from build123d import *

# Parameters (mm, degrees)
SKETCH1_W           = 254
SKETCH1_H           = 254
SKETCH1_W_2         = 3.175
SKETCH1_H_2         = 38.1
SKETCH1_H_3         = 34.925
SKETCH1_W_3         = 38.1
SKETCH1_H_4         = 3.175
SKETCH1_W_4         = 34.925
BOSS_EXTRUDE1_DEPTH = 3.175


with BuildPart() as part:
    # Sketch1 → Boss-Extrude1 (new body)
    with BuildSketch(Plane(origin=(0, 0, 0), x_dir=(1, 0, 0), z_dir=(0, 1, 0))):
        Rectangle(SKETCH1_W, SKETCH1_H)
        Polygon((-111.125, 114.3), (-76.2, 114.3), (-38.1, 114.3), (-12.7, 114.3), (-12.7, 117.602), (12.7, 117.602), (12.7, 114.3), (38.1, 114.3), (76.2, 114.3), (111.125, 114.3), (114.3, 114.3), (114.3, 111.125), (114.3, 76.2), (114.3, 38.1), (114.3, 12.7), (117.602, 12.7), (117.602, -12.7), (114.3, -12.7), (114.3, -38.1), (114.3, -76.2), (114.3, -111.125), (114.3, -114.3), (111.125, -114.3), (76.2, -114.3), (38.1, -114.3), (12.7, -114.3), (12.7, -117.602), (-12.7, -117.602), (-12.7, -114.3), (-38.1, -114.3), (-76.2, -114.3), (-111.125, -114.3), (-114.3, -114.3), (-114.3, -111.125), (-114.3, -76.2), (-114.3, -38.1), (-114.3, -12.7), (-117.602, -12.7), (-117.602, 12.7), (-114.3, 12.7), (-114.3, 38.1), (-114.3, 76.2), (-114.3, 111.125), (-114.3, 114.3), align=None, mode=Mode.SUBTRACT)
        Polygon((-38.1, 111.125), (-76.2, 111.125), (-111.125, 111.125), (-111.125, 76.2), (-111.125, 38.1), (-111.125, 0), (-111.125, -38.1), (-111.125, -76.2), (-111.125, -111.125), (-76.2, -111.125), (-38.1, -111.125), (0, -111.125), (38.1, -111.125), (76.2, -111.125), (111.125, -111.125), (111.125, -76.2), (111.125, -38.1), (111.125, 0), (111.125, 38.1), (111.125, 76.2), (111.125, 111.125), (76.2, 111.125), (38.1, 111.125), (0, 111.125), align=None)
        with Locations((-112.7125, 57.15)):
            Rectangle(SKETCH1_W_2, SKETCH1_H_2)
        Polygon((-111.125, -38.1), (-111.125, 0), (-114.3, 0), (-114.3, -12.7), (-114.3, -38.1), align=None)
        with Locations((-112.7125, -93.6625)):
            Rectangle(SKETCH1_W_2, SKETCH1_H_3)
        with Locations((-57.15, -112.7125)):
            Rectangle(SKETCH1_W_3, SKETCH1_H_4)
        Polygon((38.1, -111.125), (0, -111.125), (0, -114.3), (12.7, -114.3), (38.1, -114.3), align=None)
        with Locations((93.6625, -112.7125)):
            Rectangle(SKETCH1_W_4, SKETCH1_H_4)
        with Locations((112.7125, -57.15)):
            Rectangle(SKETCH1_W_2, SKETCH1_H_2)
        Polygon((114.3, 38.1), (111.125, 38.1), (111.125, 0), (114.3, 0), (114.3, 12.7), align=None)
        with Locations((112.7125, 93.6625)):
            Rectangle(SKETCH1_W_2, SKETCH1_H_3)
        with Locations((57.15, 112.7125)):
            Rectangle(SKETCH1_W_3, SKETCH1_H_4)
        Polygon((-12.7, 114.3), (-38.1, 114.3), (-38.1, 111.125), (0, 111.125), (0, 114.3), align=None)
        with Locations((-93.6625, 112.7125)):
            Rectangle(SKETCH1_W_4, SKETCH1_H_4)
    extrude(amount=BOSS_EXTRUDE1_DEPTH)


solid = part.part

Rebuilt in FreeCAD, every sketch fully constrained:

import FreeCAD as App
import Part
import Sketcher

V = App.Vector
Q = App.Units.Quantity


def add_polygon(sketch, points):
    """Adds a closed chain of lines whose ends are joined by coincident constraints."""
    first, n = sketch.GeometryCount, len(points)
    for a, b in zip(points, points[1:] + points[:1]):
        sketch.addGeometry(Part.LineSegment(App.Vector(*a, 0), App.Vector(*b, 0)), False)
    for i in range(n):
        sketch.addConstraint(Sketcher.Constraint("Coincident", first + i, 2, first + (i + 1) % n, 1))

doc = App.newDocument("Part")
body = doc.addObject("PartDesign::Body", "Body")

sketch1 = body.newObject("Sketcher::SketchObject", "Sketch")
sketch1.AttachmentSupport = (doc.getObject("XZ_Plane"), [""])
sketch1.MapMode = "FlatFace"
add_polygon(sketch1, [(-127, -127), (-127, 127), (127, 127), (127, -127)])
add_polygon(sketch1, [(-114.3, -114.3), (-111.1, -114.3), (-111.1, -76.2), (-114.3, -76.2)])
add_polygon(sketch1, [(-76.2, -114.3), (-38.1, -114.3), (-38.1, -111.1), (-76.2, -111.1)])
add_polygon(sketch1, [(-12.7, -114.3), (-12.7, -117.6), (12.7, -117.6), (12.7, -114.3), (38.1, -114.3), (38.1, -111.1), (0, -111.1), (0, -114.3)])
add_polygon(sketch1, [(76.2, -114.3), (114.3, -114.3), (114.3, -111.1), (76.2, -111.1)])
add_polygon(sketch1, [(114.3, -76.2), (114.3, -38.1), (111.1, -38.1), (111.1, -76.2)])
add_polygon(sketch1, [(114.3, -12.7), (117.6, -12.7), (117.6, 12.7), (114.3, 12.7), (114.3, 38.1), (111.1, 38.1), (111.1, 0), (114.3, 0)])
add_polygon(sketch1, [(114.3, 76.2), (114.3, 114.3), (111.1, 114.3), (111.1, 76.2)])
add_polygon(sketch1, [(76.2, 114.3), (38.1, 114.3), (38.1, 111.1), (76.2, 111.1)])
add_polygon(sketch1, [(12.7, 114.3), (12.7, 117.6), (-12.7, 117.6), (-12.7, 114.3), (-38.1, 114.3), (-38.1, 111.1), (0, 111.1), (0, 114.3)])
add_polygon(sketch1, [(-76.2, 114.3), (-114.3, 114.3), (-114.3, 111.1), (-76.2, 111.1)])
add_polygon(sketch1, [(-114.3, 76.2), (-114.3, 38.1), (-111.1, 38.1), (-111.1, 76.2)])
add_polygon(sketch1, [(-114.3, 12.7), (-117.6, 12.7), (-117.6, -12.7), (-114.3, -12.7), (-114.3, -38.1), (-111.1, -38.1), (-111.1, 0), (-114.3, 0)])
sketch1.addConstraint([
    Sketcher.Constraint("Vertical", 0),
    Sketcher.Constraint("Horizontal", 1),
    Sketcher.Constraint("Vertical", 2),
    Sketcher.Constraint("Horizontal", 3),
    Sketcher.Constraint("Horizontal", 4),
    Sketcher.Constraint("Vertical", 5),
    Sketcher.Constraint("Horizontal", 6),
    Sketcher.Constraint("Vertical", 7),
    Sketcher.Constraint("Horizontal", 8),
    Sketcher.Constraint("Vertical", 9),
    Sketcher.Constraint("Horizontal", 10),
    Sketcher.Constraint("Vertical", 11),
    Sketcher.Constraint("Vertical", 12),
    Sketcher.Constraint("Horizontal", 13),
    Sketcher.Constraint("Vertical", 14),
    Sketcher.Constraint("Horizontal", 15),
    Sketcher.Constraint("Vertical", 16),
    Sketcher.Constraint("Horizontal", 17),
    Sketcher.Constraint("Vertical", 18),
    Sketcher.Constraint("Horizontal", 19),
    Sketcher.Constraint("Horizontal", 20),
    Sketcher.Constraint("Vertical", 21),
    Sketcher.Constraint("Horizontal", 22),
    Sketcher.Constraint("Vertical", 23),
    Sketcher.Constraint("Vertical", 24),
    Sketcher.Constraint("Horizontal", 25),
    Sketcher.Constraint("Vertical", 26),
    Sketcher.Constraint("Horizontal", 27),
    Sketcher.Constraint("Horizontal", 28),
    Sketcher.Constraint("Vertical", 29),
    Sketcher.Constraint("Horizontal", 30),
    Sketcher.Constraint("Vertical", 31),
    Sketcher.Constraint("Horizontal", 32),
    Sketcher.Constraint("Vertical", 33),
    Sketcher.Constraint("Horizontal", 34),
    Sketcher.Constraint("Vertical", 35),
    Sketcher.Constraint("Vertical", 36),
    Sketcher.Constraint("Horizontal", 37),
    Sketcher.Constraint("Vertical", 38),
    Sketcher.Constraint("Horizontal", 39),
    Sketcher.Constraint("Horizontal", 40),
    Sketcher.Constraint("Vertical", 41),
    Sketcher.Constraint("Horizontal", 42),
    Sketcher.Constraint("Vertical", 43),
    Sketcher.Constraint("Vertical", 44),
    Sketcher.Constraint("Horizontal", 45),
    Sketcher.Constraint("Vertical", 46),
    Sketcher.Constraint("Horizontal", 47),
    Sketcher.Constraint("Vertical", 48),
    Sketcher.Constraint("Horizontal", 49),
    Sketcher.Constraint("Vertical", 50),
    Sketcher.Constraint("Horizontal", 51),
    Sketcher.Constraint("Horizontal", 52),
    Sketcher.Constraint("Vertical", 53),
    Sketcher.Constraint("Horizontal", 54),
    Sketcher.Constraint("Vertical", 55),
    Sketcher.Constraint("Vertical", 56),
    Sketcher.Constraint("Horizontal", 57),
    Sketcher.Constraint("Vertical", 58),
    Sketcher.Constraint("Horizontal", 59),
    Sketcher.Constraint("Horizontal", 60),
    Sketcher.Constraint("Vertical", 61),
    Sketcher.Constraint("Horizontal", 62),
    Sketcher.Constraint("Vertical", 63),
    Sketcher.Constraint("Horizontal", 64),
    Sketcher.Constraint("Vertical", 65),
    Sketcher.Constraint("Horizontal", 66),
    Sketcher.Constraint("Vertical", 67),
    Sketcher.Constraint("Symmetric", 0, 2, 2, 2, -1, 1),
    Sketcher.Constraint("Symmetric", 7, 2, 36, 2, -1, 1),
    Sketcher.Constraint("Symmetric", 5, 2, 38, 2, -1, 1),
    Sketcher.Constraint("Symmetric", 8, 2, 40, 2, -1, 1),
    Sketcher.Constraint("Symmetric", 10, 2, 42, 2, -1, 1),
    Sketcher.Constraint("Symmetric", 12, 2, 44, 2, -1, 1),
    Sketcher.Constraint("Symmetric", 14, 2, 46, 2, -1, 1),
    Sketcher.Constraint("Symmetric", 16, 2, 48, 2, -1, 1),
    Sketcher.Constraint("Symmetric", 18, 2, 50, 2, -1, 1),
    Sketcher.Constraint("Symmetric", 20, 2, 52, 2, -1, 1),
    Sketcher.Constraint("Symmetric", 22, 2, 54, 2, -1, 1),
    Sketcher.Constraint("Symmetric", 24, 2, 56, 2, -1, 1),
    Sketcher.Constraint("Symmetric", 26, 2, 58, 2, -1, 1),
    Sketcher.Constraint("Symmetric", 28, 2, 60, 2, -1, 1),
    Sketcher.Constraint("Symmetric", 30, 2, 62, 2, -1, 1),
    Sketcher.Constraint("Symmetric", 32, 2, 64, 2, -1, 1),
    Sketcher.Constraint("Symmetric", 34, 2, 66, 2, -1, 1),
    Sketcher.Constraint("Symmetric", 8, 2, 15, 2, -2),
    Sketcher.Constraint("Symmetric", 14, 2, 19, 2, -2),
    Sketcher.Constraint("Symmetric", 7, 2, 20, 2, -2),
    Sketcher.Constraint("Symmetric", 10, 2, 22, 2, -2),
    Sketcher.Constraint("Symmetric", 5, 2, 26, 2, -2),
    Sketcher.Constraint("Symmetric", 31, 2, 56, 2, -2),
    Sketcher.Constraint("Symmetric", 35, 2, 62, 2, -2),
    Sketcher.Constraint("PointOnObject", 17, 2, -2),
    Sketcher.Constraint("PointOnObject", 33, 2, -1),
    Sketcher.Constraint("Horizontal", 7, 2, 8, 2),
    Sketcher.Constraint("Horizontal", 10, 2, 16, 2),
    Sketcher.Constraint("Vertical", 21, 2, 24, 2),
    Sketcher.Constraint("Vertical", 26, 2, 32, 2),
    Sketcher.Constraint("Equal", 13, 15),
    Sketcher.Constraint("Equal", 10, 17),
    Sketcher.Constraint("Equal", 17, 20),
    Sketcher.Constraint("Equal", 3, 0),
    Sketcher.Constraint("Equal", 54, 5),
    Sketcher.Constraint("Equal", 66, 9),
    Sketcher.Constraint("Equal", 62, 12),
    Sketcher.Constraint("Equal", 7, 24),
    Sketcher.Constraint("Equal", 47, 29),
    Sketcher.Constraint("Equal", 29, 31),
    Sketcher.Constraint("DistanceX", 1, 1, 1, 2, Q("10 in")),
    Sketcher.Constraint("DistanceX", 13, 1, 13, 2, Q("1 in")),
    Sketcher.Constraint("DistanceX", 28, 1, 28, 2, Q("0.13 in")),
    Sketcher.Constraint("DistanceX", 4, 1, 4, 2, Q("0.125 in")),
])
pad1 = body.newObject("PartDesign::Pad", "Pad")
pad1.Profile = sketch1
pad1.Length = Q("0.125 in")
pad1.Reversed = True

doc.recompute()
